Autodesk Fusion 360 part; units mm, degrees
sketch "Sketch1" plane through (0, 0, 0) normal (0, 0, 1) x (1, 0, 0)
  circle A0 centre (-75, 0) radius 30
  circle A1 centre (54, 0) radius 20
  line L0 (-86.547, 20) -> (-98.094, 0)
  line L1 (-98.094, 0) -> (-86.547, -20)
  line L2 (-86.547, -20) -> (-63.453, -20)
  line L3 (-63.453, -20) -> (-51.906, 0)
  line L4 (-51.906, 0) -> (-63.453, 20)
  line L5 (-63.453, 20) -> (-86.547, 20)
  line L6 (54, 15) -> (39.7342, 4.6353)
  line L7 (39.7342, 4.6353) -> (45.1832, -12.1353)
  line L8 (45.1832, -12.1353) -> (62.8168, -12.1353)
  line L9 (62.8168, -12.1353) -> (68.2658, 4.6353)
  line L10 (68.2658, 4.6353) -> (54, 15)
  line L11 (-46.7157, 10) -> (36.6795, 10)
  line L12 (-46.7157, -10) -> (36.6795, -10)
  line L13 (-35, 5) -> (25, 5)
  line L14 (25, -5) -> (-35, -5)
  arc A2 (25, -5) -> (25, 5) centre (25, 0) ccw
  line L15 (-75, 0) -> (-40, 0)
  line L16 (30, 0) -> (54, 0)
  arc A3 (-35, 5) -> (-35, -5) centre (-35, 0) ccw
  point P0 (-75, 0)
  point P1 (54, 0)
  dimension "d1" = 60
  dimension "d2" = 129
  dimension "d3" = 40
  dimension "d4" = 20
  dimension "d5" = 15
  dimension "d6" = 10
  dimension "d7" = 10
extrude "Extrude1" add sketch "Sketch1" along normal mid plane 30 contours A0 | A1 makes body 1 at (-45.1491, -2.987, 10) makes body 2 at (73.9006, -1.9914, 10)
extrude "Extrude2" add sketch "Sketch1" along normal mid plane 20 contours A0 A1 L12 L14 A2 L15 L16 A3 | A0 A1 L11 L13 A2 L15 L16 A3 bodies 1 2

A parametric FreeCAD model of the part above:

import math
import FreeCAD as App
import Part
import Sketcher

V = App.Vector
Q = App.Units.Quantity


def add_polygon(sketch, points):
    """Adds a closed chain of lines whose ends are joined by coincident constraints."""
    first, n = sketch.GeometryCount, len(points)
    for a, b in zip(points, points[1:] + points[:1]):
        sketch.addGeometry(Part.LineSegment(App.Vector(*a, 0), App.Vector(*b, 0)), False)
    for i in range(n):
        sketch.addConstraint(Sketcher.Constraint("Coincident", first + i, 2, first + (i + 1) % n, 1))

doc = App.newDocument("Part")
body = doc.addObject("PartDesign::Body", "Body")
body.AllowCompound = True

sketch1 = doc.addObject("Sketcher::SketchObject", "Sketch")
body.addObject(sketch1)
sketch1.AttachmentSupport = (doc.XY_Plane, [""])
sketch1.MapMode = "FlatFace"
sketch1.addGeometry(Part.Circle(V(-75, 0, 0), V(0, 0, 1), 30), False)
add_polygon(sketch1, [(-63.5, 20), (-51.9, 0), (-63.5, -20), (-86.5, -20), (-98.1, 0), (-86.5, 20)])
sketch1.addGeometry(Part.Circle(V(54, 0, 0), V(0, 0, 1), 20), False)
add_polygon(sketch1, [(45.2, -12.1), (41.2, 0), (39.7, 4.6), (54, 15), (68.3, 4.6), (62.8, -12.1)])
sketch1.addConstraint([
    Sketcher.Constraint("Horizontal", 3),
    Sketcher.Constraint("Horizontal", 6),
    Sketcher.Constraint("Horizontal", 13),
    Sketcher.Constraint("Symmetric", 3, 2, 5, 2, -1),
    Sketcher.Constraint("PointOnObject", 0, 3, -1),
    Sketcher.Constraint("PointOnObject", 7, 3, -1),
    Sketcher.Constraint("PointOnObject", 1, 2, -1),
    Sketcher.Constraint("PointOnObject", 4, 2, -1),
    Sketcher.Constraint("PointOnObject", 8, 2, -1),
    Sketcher.Constraint("Parallel", 1, 4),
    Sketcher.Constraint("Parallel", 2, 5),
    Sketcher.Constraint("Parallel", 8, 9),
    Sketcher.Constraint("Horizontal", 9, 2, 11, 2),
    Sketcher.Constraint("Vertical", 7, 3, 10, 2),
    Sketcher.Constraint("Equal", 10, 11),
    Sketcher.Constraint("Equal", 11, 12),
    Sketcher.Constraint("Diameter", 0, 60.0),
    Sketcher.Constraint("Diameter", 7, 40.0),
    Sketcher.Constraint("Angle", 1, Q("-60 deg")),
    Sketcher.Constraint("DistanceY", 2, 2, -1, 1, 20.0),
    Sketcher.Constraint("DistanceY", -1, 1, 10, 2, 15.0),
    Sketcher.Constraint("DistanceX", 0, 3, 7, 3, 129.0),
    Sketcher.Constraint("Angle", 8, Q("107.9997 deg")),
    Sketcher.Constraint("Angle", 10, Q("36 deg")),
    Sketcher.Constraint("Angle", 12, Q("-107.9997 deg")),
    Sketcher.Constraint("DistanceX", 0, 3, -1, 1, 75.0),
    Sketcher.Constraint("DistanceX", 3, 2, 3, 1, 23.094),
    Sketcher.Constraint("DistanceX", 13, 2, 13, 1, 17.6336),
    Sketcher.Constraint("DistanceX", 1, 2, -1, 1, 51.906),
])
pad1 = doc.addObject("PartDesign::Pad", "Pad")
body.addObject(pad1)
pad1.Profile = sketch1
pad1.Length = 30
pad1.Midplane = True

sketch2 = doc.addObject("Sketcher::SketchObject", "Sketch001")
body.addObject(sketch2)
sketch2.AttachmentSupport = (doc.XY_Plane, [""])
sketch2.MapMode = "FlatFace"
sketch2.addGeometry([
    Part.ArcOfCircle(Part.Circle(V(54, 0, 0), V(0, 0, 1), 20), math.radians(150), math.radians(210)),
    Part.LineSegment(V(37, 10, 0), V(-47, 10, 0)),
    Part.ArcOfCircle(Part.Circle(V(-75, 0, 0), V(0, 0, 1), 30), math.radians(-19), math.radians(19)),
    Part.LineSegment(V(-47, -10, 0), V(37, -10, 0)),
    Part.ArcOfCircle(Part.Circle(V(-35, 0, 0), V(0, 0, 1), 5), math.radians(90), math.radians(270)),
    Part.LineSegment(V(-35, 5, 0), V(25, 5, 0)),
    Part.ArcOfCircle(Part.Circle(V(25, 0, 0), V(0, 0, 1), 5), math.radians(-90), math.radians(90)),
    Part.LineSegment(V(25, -5, 0), V(-35, -5, 0)),
], False)
sketch2.addConstraint([
    Sketcher.Constraint("Coincident", 0, 1, 1, 1),
    Sketcher.Constraint("Coincident", 1, 2, 2, 2),
    Sketcher.Constraint("Coincident", 2, 1, 3, 1),
    Sketcher.Constraint("Coincident", 3, 2, 0, 2),
    Sketcher.Constraint("Tangent", 4, 1, 5, 1),
    Sketcher.Constraint("Tangent", 5, 2, 6, 2),
    Sketcher.Constraint("Tangent", 6, 1, 7, 1),
    Sketcher.Constraint("Tangent", 7, 2, 4, 2),
    Sketcher.Constraint("Horizontal", 1),
    Sketcher.Constraint("Horizontal", 3),
    Sketcher.Constraint("Horizontal", 5),
    Sketcher.Constraint("Horizontal", 7),
    Sketcher.Constraint("Symmetric", 1, 2, 2, 1, -1),
    Sketcher.Constraint("PointOnObject", 0, 3, -1),
    Sketcher.Constraint("PointOnObject", 4, 3, -1),
    Sketcher.Constraint("Radius", 0, 20.0),
    Sketcher.Constraint("Radius", 2, 30.0),
    Sketcher.Constraint("Radius", 4, 5.0),
    Sketcher.Constraint("DistanceX", 5, 1, 5, 2, 60.0),
    Sketcher.Constraint("DistanceY", -1, 1, 0, 1, 10.0),
    Sketcher.Constraint("DistanceX", 2, 3, 0, 3, 129.0),
    Sketcher.Constraint("DistanceX", 2, 3, 4, 3, 40.0),
    Sketcher.Constraint("DistanceX", -1, 1, 0, 3, 54.0),
])
pad2 = doc.addObject("PartDesign::Pad", "Pad001")
body.addObject(pad2)
pad2.Profile = sketch2
pad2.Length = 20
pad2.Midplane = True

doc.recompute()
